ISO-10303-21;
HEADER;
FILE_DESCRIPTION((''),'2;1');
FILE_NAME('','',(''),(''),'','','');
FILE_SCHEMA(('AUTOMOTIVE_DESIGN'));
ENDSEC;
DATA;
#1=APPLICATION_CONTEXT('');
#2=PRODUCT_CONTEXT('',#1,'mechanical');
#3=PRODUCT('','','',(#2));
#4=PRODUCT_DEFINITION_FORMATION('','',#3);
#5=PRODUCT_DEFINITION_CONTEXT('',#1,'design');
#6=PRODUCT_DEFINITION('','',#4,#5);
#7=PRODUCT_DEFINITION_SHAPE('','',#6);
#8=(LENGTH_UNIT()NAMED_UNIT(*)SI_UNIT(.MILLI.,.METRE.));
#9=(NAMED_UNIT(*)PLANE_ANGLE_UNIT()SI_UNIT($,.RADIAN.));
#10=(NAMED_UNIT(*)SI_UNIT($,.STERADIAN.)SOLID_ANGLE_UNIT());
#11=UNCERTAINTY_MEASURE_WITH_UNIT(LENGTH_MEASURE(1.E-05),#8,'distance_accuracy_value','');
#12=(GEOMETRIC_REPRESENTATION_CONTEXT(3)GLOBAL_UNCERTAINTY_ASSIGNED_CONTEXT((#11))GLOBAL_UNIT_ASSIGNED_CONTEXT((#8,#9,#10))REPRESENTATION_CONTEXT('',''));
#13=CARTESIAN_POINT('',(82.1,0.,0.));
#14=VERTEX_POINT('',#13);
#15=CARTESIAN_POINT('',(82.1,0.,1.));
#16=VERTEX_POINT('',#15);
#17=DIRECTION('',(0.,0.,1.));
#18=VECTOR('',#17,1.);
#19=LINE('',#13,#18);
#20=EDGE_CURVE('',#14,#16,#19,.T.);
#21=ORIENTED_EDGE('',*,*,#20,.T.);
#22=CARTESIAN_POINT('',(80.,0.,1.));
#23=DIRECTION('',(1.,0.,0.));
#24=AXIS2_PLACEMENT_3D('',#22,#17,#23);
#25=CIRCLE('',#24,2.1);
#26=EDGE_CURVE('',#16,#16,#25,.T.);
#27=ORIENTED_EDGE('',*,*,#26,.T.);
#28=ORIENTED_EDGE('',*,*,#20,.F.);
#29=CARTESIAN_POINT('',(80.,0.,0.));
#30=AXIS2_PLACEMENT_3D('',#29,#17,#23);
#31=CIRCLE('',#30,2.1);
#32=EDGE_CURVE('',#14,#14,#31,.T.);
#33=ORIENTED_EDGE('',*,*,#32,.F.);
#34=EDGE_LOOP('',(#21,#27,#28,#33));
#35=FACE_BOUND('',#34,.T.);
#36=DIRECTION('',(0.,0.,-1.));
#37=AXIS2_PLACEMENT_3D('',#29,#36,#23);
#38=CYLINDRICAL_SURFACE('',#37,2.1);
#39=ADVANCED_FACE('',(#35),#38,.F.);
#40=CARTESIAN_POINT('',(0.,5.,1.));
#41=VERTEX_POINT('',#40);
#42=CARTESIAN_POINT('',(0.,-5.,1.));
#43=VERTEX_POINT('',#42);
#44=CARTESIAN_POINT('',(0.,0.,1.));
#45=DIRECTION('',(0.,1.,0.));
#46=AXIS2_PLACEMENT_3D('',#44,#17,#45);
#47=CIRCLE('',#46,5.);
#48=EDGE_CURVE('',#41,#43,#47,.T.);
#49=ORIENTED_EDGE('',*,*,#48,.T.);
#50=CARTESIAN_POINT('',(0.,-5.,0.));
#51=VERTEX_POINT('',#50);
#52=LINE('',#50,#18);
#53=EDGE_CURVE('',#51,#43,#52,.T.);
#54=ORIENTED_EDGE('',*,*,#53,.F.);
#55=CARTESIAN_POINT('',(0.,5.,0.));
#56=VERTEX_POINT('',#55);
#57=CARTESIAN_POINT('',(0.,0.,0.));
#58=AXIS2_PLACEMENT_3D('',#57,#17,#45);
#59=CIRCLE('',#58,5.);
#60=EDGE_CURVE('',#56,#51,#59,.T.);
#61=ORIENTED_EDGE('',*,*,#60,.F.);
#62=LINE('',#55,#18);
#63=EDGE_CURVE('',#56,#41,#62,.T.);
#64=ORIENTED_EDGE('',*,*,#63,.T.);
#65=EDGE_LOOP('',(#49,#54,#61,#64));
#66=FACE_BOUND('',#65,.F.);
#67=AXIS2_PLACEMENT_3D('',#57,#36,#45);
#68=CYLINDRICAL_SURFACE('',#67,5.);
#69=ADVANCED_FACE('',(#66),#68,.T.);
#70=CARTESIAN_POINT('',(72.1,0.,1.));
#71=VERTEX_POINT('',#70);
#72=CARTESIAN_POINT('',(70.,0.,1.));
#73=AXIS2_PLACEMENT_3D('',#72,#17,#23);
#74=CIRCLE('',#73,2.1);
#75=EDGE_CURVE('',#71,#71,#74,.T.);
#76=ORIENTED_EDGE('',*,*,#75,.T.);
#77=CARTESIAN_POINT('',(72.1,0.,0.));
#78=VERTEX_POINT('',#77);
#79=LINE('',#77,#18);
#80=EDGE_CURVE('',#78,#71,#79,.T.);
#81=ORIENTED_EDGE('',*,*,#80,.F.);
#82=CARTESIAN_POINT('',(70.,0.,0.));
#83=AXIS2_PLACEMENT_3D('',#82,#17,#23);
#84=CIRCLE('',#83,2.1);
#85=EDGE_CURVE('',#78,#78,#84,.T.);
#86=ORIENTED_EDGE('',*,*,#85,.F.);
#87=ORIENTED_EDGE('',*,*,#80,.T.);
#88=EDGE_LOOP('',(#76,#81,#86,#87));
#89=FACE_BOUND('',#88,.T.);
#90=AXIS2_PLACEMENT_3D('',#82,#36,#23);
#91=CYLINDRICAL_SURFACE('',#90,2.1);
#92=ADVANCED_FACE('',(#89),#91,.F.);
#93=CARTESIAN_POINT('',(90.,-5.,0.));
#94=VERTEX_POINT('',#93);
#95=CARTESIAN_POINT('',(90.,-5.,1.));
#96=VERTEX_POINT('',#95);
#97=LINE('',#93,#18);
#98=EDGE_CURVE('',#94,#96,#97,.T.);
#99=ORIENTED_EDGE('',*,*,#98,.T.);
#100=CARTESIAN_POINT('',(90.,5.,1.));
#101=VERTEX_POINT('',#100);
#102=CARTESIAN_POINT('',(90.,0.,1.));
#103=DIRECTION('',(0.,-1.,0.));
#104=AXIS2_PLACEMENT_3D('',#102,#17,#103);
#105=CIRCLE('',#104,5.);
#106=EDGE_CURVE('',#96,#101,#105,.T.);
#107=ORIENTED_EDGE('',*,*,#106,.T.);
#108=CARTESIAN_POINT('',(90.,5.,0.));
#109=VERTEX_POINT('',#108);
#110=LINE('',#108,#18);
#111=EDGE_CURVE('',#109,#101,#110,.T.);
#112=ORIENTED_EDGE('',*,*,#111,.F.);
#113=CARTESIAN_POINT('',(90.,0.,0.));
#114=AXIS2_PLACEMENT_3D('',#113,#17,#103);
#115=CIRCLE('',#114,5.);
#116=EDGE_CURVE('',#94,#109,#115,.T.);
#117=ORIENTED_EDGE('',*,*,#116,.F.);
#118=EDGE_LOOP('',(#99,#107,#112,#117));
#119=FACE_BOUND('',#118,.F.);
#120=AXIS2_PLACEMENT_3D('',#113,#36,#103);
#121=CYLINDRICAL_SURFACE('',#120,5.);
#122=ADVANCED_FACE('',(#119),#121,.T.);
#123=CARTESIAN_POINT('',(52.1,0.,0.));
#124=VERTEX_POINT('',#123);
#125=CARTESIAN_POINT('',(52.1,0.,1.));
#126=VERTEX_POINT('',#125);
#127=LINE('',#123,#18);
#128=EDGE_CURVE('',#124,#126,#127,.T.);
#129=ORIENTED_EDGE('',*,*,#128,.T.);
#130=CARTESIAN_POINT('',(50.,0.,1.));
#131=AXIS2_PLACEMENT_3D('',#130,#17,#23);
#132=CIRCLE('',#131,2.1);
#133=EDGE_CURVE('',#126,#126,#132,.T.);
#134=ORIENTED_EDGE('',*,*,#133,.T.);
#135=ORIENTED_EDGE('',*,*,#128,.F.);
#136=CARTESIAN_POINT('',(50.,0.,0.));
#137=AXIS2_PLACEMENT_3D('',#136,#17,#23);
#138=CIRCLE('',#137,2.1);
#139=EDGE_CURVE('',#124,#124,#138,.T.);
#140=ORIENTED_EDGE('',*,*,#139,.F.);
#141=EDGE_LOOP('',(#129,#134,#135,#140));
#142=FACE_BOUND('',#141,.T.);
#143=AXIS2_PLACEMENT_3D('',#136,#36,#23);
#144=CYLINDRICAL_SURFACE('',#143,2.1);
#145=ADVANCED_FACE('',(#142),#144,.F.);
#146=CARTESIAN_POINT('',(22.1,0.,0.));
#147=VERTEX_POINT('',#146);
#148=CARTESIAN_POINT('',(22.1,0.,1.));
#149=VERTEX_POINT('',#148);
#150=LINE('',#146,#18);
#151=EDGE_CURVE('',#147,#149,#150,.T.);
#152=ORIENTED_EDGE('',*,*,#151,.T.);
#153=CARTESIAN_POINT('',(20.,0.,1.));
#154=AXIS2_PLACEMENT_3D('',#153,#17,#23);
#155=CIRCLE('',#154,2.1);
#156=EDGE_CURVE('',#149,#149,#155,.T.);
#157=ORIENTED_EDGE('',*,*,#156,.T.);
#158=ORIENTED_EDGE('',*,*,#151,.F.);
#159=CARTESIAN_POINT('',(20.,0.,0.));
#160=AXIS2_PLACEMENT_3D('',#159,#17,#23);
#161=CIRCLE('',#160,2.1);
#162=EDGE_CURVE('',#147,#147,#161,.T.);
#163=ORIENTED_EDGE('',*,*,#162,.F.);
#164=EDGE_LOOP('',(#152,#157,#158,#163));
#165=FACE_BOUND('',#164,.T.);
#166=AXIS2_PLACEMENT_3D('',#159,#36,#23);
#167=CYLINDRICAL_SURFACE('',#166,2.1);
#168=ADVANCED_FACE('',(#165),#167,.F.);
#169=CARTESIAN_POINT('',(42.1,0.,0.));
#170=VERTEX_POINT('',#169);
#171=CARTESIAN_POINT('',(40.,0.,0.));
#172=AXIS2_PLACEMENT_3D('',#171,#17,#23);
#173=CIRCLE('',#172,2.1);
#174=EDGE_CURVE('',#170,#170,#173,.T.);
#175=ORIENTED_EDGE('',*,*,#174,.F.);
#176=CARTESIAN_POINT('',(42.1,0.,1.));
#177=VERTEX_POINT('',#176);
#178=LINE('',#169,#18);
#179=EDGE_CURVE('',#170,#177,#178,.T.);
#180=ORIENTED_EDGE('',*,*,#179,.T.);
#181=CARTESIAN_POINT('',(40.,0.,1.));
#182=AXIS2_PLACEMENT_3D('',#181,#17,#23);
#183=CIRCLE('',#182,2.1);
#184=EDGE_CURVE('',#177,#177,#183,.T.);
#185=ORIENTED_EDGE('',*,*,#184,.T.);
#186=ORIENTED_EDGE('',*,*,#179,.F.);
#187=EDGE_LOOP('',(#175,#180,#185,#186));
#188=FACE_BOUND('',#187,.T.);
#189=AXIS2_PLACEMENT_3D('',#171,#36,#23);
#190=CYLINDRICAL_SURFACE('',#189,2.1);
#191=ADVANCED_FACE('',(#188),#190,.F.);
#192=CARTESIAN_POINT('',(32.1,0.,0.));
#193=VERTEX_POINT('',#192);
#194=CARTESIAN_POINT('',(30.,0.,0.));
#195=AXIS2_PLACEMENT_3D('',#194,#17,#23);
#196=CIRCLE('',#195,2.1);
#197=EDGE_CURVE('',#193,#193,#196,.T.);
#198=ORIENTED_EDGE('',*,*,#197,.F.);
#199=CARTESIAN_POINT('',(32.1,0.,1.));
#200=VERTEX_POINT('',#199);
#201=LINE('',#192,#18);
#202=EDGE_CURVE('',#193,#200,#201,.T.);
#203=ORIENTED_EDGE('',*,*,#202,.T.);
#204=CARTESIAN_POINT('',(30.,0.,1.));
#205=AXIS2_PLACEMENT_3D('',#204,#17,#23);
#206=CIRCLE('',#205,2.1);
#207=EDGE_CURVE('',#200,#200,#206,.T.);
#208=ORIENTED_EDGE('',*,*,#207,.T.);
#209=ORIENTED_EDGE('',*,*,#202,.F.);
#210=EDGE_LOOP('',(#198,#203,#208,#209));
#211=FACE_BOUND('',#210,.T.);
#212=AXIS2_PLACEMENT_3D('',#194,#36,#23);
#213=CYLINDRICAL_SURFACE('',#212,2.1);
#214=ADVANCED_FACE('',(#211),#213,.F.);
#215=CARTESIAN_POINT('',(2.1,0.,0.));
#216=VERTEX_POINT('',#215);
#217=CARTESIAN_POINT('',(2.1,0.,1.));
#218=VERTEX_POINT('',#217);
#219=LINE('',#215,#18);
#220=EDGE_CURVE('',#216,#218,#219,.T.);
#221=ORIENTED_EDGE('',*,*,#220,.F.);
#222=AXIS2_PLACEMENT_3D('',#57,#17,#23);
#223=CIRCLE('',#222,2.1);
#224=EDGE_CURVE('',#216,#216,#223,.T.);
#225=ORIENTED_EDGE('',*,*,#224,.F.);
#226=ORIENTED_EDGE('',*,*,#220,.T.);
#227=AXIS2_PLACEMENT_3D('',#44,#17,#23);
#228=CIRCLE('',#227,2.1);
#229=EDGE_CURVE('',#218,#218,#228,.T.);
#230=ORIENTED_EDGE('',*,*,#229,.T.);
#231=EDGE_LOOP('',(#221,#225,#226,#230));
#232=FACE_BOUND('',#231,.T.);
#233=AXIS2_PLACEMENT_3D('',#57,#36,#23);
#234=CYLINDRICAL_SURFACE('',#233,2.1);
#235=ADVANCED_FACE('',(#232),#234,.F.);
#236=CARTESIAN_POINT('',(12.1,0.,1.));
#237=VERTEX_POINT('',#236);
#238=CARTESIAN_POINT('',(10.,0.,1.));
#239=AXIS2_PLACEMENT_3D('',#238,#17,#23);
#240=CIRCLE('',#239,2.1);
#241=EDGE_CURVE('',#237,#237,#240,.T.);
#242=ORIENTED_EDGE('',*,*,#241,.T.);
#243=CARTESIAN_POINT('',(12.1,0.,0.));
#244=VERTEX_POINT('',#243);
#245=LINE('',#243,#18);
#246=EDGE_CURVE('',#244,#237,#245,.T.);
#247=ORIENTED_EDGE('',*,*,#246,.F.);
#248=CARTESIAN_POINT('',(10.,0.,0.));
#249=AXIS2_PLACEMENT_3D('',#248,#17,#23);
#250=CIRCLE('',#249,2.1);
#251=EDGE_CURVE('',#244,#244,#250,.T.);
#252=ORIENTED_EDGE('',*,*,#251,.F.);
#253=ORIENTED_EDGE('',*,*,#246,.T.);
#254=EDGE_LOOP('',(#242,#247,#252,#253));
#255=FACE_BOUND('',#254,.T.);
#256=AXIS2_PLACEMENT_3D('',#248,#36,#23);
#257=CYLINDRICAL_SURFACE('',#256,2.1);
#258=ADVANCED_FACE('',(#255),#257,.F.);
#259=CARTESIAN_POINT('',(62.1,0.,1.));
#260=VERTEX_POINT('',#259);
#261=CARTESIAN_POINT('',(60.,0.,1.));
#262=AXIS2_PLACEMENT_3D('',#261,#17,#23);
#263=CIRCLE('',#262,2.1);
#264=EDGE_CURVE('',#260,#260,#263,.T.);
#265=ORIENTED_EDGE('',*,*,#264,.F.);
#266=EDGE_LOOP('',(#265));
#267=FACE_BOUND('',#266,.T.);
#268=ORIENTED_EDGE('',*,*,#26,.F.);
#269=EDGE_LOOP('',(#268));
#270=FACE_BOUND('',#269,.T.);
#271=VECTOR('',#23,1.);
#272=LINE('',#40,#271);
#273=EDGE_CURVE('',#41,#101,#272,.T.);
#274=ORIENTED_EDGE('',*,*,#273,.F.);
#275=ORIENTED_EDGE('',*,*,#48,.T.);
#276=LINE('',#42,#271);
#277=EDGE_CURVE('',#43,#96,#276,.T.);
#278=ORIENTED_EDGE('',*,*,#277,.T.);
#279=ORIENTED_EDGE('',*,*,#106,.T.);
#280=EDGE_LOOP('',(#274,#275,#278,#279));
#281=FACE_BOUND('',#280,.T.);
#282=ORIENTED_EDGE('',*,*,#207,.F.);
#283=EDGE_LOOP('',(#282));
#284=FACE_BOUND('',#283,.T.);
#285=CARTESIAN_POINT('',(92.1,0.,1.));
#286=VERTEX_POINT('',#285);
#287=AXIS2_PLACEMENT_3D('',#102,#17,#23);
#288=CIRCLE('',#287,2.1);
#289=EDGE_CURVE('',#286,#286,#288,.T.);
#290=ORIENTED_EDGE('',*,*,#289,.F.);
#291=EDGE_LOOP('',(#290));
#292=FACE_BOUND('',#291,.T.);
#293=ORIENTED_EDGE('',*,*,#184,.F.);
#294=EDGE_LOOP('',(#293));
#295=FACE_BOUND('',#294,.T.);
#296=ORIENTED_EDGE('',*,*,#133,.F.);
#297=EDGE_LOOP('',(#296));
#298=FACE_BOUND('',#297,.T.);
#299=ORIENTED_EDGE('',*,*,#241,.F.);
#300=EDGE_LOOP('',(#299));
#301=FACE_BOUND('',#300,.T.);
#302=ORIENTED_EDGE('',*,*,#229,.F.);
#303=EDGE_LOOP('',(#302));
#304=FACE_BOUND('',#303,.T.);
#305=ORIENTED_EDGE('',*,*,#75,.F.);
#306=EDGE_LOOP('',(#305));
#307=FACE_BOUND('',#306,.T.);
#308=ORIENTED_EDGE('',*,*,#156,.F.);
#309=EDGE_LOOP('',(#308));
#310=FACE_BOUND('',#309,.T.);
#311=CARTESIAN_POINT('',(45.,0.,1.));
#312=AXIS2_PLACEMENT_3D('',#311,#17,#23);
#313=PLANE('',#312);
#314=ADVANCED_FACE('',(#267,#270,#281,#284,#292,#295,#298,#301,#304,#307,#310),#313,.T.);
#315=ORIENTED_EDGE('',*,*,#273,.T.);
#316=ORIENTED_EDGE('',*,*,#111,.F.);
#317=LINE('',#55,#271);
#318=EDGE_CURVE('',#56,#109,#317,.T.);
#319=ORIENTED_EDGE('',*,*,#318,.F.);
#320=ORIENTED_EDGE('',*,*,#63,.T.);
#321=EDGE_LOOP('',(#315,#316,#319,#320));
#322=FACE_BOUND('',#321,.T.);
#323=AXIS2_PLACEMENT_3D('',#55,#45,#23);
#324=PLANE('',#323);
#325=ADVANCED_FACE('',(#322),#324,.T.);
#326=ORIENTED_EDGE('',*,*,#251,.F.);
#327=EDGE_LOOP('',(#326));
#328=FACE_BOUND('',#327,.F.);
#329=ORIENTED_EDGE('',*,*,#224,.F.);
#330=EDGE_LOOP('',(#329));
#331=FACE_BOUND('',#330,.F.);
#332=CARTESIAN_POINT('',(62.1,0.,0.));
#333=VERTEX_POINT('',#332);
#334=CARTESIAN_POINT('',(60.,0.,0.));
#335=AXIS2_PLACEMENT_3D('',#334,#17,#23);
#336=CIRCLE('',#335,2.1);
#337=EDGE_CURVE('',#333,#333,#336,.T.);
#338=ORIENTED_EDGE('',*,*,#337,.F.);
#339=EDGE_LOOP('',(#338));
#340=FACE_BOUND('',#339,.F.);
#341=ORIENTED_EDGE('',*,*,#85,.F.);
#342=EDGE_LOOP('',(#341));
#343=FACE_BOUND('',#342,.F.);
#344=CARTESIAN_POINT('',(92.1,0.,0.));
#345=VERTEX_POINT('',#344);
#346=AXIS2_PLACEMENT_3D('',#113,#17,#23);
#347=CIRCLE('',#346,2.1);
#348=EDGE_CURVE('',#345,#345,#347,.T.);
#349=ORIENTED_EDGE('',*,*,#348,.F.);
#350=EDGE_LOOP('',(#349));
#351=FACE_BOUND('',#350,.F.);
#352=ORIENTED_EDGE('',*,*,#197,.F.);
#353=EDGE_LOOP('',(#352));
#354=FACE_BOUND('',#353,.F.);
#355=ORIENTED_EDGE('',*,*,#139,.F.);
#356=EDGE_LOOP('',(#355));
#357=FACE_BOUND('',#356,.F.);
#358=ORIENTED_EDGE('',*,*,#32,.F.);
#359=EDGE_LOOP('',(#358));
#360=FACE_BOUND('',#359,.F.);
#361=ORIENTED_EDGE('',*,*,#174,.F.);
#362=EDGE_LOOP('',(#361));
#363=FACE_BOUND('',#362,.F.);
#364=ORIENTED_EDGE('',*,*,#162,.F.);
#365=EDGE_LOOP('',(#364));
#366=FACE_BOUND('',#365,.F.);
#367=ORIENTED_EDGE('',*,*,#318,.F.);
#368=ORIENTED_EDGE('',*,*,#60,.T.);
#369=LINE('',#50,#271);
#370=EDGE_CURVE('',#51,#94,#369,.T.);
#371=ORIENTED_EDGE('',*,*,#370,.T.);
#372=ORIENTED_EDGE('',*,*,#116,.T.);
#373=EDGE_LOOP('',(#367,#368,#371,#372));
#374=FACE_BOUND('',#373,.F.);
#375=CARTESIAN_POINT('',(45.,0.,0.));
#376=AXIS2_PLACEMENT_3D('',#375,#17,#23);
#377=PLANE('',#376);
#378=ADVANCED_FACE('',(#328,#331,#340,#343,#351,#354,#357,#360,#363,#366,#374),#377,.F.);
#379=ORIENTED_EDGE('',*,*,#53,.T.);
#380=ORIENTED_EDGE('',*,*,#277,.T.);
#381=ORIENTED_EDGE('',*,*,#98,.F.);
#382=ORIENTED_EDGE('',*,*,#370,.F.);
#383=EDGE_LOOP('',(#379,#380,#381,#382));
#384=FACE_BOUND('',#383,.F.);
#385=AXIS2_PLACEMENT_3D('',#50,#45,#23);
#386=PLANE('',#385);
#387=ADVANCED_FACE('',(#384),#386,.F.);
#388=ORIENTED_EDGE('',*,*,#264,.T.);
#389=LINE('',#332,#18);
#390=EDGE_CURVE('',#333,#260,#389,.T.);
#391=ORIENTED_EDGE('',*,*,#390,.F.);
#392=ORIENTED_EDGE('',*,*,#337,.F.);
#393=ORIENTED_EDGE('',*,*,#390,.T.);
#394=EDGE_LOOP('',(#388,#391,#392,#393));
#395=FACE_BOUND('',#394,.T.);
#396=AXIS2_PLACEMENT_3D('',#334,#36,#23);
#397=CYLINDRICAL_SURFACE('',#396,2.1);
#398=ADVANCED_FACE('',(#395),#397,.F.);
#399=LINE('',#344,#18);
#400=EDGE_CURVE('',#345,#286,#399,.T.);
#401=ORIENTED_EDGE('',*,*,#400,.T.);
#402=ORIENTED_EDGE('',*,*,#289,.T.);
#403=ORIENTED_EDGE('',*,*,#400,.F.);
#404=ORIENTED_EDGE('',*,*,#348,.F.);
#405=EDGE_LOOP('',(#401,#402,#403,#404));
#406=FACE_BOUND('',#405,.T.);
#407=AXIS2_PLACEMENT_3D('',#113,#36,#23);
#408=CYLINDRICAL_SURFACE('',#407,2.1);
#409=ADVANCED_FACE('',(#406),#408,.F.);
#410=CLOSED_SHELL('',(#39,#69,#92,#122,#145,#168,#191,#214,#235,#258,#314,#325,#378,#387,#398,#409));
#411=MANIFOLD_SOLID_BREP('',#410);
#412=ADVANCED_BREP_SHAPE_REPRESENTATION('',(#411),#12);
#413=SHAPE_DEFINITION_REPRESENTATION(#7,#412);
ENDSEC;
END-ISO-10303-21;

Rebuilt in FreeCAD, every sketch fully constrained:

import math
import FreeCAD as App
import Part
import Sketcher

V = App.Vector
Q = App.Units.Quantity

doc = App.newDocument("Part")
params = doc.addObject("Spreadsheet::Sheet", "Params")
for row, (alias, value) in enumerate([
    ("sketch1_radius", "5 mm"),
    ("sketch1_diameter", "4.2 mm"),
    ("sketch1_width", "90 mm"),
    ("pad1_length", "1 mm"),
], start=1):
    params.set(f"A{row}", alias)
    params.set(f"B{row}", "=" + value)
    params.setAlias(f"B{row}", alias)

body = doc.addObject("PartDesign::Body", "Body")

# Sketch on XY plane
sketch1 = doc.addObject("Sketcher::SketchObject", "Sketch")
body.addObject(sketch1)
sketch1.AttachmentSupport = (doc.XY_Plane, [""])
sketch1.MapMode = "FlatFace"
sketch1.addGeometry(Part.ArcOfCircle(Part.Circle(V(0, 0, 0), V(0, 0, 1), 5), math.radians(90), math.radians(270)), False)
sketch1.addGeometry(Part.LineSegment(V(0, -5, 0), V(90, -5, 0)), False)
sketch1.addGeometry(Part.ArcOfCircle(Part.Circle(V(90, 0, 0), V(0, 0, 1), 5), math.radians(-90), math.radians(90)), False)
sketch1.addGeometry(Part.LineSegment(V(90, 5, 0), V(0, 5, 0)), False)
sketch1.addGeometry(Part.Circle(V(0, 0, 0), V(0, 0, 1), 2.1), False)
sketch1.addGeometry(Part.Circle(V(10, 0, 0), V(0, 0, 1), 2.1), False)
sketch1.addGeometry(Part.Circle(V(20, 0, 0), V(0, 0, 1), 2.1), False)
sketch1.addGeometry(Part.Circle(V(30, 0, 0), V(0, 0, 1), 2.1), False)
sketch1.addGeometry(Part.Circle(V(40, 0, 0), V(0, 0, 1), 2.1), False)
sketch1.addGeometry(Part.Circle(V(50, 0, 0), V(0, 0, 1), 2.1), False)
sketch1.addGeometry(Part.Circle(V(60, 0, 0), V(0, 0, 1), 2.1), False)
sketch1.addGeometry(Part.Circle(V(70, 0, 0), V(0, 0, 1), 2.1), False)
sketch1.addGeometry(Part.Circle(V(80, 0, 0), V(0, 0, 1), 2.1), False)
sketch1.addGeometry(Part.Circle(V(90, 0, 0), V(0, 0, 1), 2.1), False)
sketch1.addConstraint(Sketcher.Constraint("Tangent", 0, 2, 1, 1))
sketch1.addConstraint(Sketcher.Constraint("Tangent", 1, 2, 2, 1))
sketch1.addConstraint(Sketcher.Constraint("Tangent", 2, 2, 3, 1))
sketch1.addConstraint(Sketcher.Constraint("Tangent", 3, 2, 0, 1))
sketch1.addConstraint(Sketcher.Constraint("Horizontal", 1))
sketch1.addConstraint(Sketcher.Constraint("Horizontal", 3))
sketch1.addConstraint(Sketcher.Constraint("Coincident", 0, 3, -1, 1))
sketch1.addConstraint(Sketcher.Constraint("Coincident", 4, 3, -1, 1))
sketch1.addConstraint(Sketcher.Constraint("Coincident", 13, 3, 2, 3))
sketch1.addConstraint(Sketcher.Constraint("Equal", 4, 5))
sketch1.addConstraint(Sketcher.Constraint("Equal", 5, 6))
sketch1.addConstraint(Sketcher.Constraint("Equal", 6, 7))
sketch1.addConstraint(Sketcher.Constraint("Equal", 7, 8))
sketch1.addConstraint(Sketcher.Constraint("Equal", 8, 9))
sketch1.addConstraint(Sketcher.Constraint("Equal", 9, 10))
sketch1.addConstraint(Sketcher.Constraint("Equal", 10, 11))
sketch1.addConstraint(Sketcher.Constraint("Equal", 11, 12))
sketch1.addConstraint(Sketcher.Constraint("Equal", 12, 13))
sketch1.addConstraint(Sketcher.Constraint("PointOnObject", 5, 3, -1))
sketch1.addConstraint(Sketcher.Constraint("PointOnObject", 6, 3, -1))
sketch1.addConstraint(Sketcher.Constraint("PointOnObject", 7, 3, -1))
sketch1.addConstraint(Sketcher.Constraint("PointOnObject", 8, 3, -1))
sketch1.addConstraint(Sketcher.Constraint("PointOnObject", 9, 3, -1))
sketch1.addConstraint(Sketcher.Constraint("PointOnObject", 10, 3, -1))
sketch1.addConstraint(Sketcher.Constraint("PointOnObject", 11, 3, -1))
sketch1.addConstraint(Sketcher.Constraint("PointOnObject", 12, 3, -1))
sketch1.addConstraint(Sketcher.Constraint("Radius", 0, Q("5 mm")))
sketch1.addConstraint(Sketcher.Constraint("Diameter", 4, Q("4.2 mm")))
sketch1.addConstraint(Sketcher.Constraint("DistanceX", 1, 1, 1, 2, Q("90 mm")))
sketch1.addConstraint(Sketcher.Constraint("DistanceX", -1, 1, 5, 3, Q("10 mm")))
sketch1.addConstraint(Sketcher.Constraint("DistanceX", -1, 1, 6, 3, Q("20 mm")))
sketch1.addConstraint(Sketcher.Constraint("DistanceX", -1, 1, 7, 3, Q("30 mm")))
sketch1.addConstraint(Sketcher.Constraint("DistanceX", -1, 1, 8, 3, Q("40 mm")))
sketch1.addConstraint(Sketcher.Constraint("DistanceX", -1, 1, 9, 3, Q("50 mm")))
sketch1.addConstraint(Sketcher.Constraint("DistanceX", -1, 1, 10, 3, Q("60 mm")))
sketch1.addConstraint(Sketcher.Constraint("DistanceX", -1, 1, 11, 3, Q("70 mm")))
sketch1.addConstraint(Sketcher.Constraint("DistanceX", -1, 1, 12, 3, Q("80 mm")))
sketch1.setExpression("Constraints[26]", "Params.sketch1_radius")
sketch1.setExpression("Constraints[27]", "Params.sketch1_diameter")
sketch1.setExpression("Constraints[28]", "Params.sketch1_width")
pad1 = doc.addObject("PartDesign::Pad", "Pad")
body.addObject(pad1)
pad1.Profile = sketch1
pad1.setExpression("Length", "Params.pad1_length")

doc.recompute()
